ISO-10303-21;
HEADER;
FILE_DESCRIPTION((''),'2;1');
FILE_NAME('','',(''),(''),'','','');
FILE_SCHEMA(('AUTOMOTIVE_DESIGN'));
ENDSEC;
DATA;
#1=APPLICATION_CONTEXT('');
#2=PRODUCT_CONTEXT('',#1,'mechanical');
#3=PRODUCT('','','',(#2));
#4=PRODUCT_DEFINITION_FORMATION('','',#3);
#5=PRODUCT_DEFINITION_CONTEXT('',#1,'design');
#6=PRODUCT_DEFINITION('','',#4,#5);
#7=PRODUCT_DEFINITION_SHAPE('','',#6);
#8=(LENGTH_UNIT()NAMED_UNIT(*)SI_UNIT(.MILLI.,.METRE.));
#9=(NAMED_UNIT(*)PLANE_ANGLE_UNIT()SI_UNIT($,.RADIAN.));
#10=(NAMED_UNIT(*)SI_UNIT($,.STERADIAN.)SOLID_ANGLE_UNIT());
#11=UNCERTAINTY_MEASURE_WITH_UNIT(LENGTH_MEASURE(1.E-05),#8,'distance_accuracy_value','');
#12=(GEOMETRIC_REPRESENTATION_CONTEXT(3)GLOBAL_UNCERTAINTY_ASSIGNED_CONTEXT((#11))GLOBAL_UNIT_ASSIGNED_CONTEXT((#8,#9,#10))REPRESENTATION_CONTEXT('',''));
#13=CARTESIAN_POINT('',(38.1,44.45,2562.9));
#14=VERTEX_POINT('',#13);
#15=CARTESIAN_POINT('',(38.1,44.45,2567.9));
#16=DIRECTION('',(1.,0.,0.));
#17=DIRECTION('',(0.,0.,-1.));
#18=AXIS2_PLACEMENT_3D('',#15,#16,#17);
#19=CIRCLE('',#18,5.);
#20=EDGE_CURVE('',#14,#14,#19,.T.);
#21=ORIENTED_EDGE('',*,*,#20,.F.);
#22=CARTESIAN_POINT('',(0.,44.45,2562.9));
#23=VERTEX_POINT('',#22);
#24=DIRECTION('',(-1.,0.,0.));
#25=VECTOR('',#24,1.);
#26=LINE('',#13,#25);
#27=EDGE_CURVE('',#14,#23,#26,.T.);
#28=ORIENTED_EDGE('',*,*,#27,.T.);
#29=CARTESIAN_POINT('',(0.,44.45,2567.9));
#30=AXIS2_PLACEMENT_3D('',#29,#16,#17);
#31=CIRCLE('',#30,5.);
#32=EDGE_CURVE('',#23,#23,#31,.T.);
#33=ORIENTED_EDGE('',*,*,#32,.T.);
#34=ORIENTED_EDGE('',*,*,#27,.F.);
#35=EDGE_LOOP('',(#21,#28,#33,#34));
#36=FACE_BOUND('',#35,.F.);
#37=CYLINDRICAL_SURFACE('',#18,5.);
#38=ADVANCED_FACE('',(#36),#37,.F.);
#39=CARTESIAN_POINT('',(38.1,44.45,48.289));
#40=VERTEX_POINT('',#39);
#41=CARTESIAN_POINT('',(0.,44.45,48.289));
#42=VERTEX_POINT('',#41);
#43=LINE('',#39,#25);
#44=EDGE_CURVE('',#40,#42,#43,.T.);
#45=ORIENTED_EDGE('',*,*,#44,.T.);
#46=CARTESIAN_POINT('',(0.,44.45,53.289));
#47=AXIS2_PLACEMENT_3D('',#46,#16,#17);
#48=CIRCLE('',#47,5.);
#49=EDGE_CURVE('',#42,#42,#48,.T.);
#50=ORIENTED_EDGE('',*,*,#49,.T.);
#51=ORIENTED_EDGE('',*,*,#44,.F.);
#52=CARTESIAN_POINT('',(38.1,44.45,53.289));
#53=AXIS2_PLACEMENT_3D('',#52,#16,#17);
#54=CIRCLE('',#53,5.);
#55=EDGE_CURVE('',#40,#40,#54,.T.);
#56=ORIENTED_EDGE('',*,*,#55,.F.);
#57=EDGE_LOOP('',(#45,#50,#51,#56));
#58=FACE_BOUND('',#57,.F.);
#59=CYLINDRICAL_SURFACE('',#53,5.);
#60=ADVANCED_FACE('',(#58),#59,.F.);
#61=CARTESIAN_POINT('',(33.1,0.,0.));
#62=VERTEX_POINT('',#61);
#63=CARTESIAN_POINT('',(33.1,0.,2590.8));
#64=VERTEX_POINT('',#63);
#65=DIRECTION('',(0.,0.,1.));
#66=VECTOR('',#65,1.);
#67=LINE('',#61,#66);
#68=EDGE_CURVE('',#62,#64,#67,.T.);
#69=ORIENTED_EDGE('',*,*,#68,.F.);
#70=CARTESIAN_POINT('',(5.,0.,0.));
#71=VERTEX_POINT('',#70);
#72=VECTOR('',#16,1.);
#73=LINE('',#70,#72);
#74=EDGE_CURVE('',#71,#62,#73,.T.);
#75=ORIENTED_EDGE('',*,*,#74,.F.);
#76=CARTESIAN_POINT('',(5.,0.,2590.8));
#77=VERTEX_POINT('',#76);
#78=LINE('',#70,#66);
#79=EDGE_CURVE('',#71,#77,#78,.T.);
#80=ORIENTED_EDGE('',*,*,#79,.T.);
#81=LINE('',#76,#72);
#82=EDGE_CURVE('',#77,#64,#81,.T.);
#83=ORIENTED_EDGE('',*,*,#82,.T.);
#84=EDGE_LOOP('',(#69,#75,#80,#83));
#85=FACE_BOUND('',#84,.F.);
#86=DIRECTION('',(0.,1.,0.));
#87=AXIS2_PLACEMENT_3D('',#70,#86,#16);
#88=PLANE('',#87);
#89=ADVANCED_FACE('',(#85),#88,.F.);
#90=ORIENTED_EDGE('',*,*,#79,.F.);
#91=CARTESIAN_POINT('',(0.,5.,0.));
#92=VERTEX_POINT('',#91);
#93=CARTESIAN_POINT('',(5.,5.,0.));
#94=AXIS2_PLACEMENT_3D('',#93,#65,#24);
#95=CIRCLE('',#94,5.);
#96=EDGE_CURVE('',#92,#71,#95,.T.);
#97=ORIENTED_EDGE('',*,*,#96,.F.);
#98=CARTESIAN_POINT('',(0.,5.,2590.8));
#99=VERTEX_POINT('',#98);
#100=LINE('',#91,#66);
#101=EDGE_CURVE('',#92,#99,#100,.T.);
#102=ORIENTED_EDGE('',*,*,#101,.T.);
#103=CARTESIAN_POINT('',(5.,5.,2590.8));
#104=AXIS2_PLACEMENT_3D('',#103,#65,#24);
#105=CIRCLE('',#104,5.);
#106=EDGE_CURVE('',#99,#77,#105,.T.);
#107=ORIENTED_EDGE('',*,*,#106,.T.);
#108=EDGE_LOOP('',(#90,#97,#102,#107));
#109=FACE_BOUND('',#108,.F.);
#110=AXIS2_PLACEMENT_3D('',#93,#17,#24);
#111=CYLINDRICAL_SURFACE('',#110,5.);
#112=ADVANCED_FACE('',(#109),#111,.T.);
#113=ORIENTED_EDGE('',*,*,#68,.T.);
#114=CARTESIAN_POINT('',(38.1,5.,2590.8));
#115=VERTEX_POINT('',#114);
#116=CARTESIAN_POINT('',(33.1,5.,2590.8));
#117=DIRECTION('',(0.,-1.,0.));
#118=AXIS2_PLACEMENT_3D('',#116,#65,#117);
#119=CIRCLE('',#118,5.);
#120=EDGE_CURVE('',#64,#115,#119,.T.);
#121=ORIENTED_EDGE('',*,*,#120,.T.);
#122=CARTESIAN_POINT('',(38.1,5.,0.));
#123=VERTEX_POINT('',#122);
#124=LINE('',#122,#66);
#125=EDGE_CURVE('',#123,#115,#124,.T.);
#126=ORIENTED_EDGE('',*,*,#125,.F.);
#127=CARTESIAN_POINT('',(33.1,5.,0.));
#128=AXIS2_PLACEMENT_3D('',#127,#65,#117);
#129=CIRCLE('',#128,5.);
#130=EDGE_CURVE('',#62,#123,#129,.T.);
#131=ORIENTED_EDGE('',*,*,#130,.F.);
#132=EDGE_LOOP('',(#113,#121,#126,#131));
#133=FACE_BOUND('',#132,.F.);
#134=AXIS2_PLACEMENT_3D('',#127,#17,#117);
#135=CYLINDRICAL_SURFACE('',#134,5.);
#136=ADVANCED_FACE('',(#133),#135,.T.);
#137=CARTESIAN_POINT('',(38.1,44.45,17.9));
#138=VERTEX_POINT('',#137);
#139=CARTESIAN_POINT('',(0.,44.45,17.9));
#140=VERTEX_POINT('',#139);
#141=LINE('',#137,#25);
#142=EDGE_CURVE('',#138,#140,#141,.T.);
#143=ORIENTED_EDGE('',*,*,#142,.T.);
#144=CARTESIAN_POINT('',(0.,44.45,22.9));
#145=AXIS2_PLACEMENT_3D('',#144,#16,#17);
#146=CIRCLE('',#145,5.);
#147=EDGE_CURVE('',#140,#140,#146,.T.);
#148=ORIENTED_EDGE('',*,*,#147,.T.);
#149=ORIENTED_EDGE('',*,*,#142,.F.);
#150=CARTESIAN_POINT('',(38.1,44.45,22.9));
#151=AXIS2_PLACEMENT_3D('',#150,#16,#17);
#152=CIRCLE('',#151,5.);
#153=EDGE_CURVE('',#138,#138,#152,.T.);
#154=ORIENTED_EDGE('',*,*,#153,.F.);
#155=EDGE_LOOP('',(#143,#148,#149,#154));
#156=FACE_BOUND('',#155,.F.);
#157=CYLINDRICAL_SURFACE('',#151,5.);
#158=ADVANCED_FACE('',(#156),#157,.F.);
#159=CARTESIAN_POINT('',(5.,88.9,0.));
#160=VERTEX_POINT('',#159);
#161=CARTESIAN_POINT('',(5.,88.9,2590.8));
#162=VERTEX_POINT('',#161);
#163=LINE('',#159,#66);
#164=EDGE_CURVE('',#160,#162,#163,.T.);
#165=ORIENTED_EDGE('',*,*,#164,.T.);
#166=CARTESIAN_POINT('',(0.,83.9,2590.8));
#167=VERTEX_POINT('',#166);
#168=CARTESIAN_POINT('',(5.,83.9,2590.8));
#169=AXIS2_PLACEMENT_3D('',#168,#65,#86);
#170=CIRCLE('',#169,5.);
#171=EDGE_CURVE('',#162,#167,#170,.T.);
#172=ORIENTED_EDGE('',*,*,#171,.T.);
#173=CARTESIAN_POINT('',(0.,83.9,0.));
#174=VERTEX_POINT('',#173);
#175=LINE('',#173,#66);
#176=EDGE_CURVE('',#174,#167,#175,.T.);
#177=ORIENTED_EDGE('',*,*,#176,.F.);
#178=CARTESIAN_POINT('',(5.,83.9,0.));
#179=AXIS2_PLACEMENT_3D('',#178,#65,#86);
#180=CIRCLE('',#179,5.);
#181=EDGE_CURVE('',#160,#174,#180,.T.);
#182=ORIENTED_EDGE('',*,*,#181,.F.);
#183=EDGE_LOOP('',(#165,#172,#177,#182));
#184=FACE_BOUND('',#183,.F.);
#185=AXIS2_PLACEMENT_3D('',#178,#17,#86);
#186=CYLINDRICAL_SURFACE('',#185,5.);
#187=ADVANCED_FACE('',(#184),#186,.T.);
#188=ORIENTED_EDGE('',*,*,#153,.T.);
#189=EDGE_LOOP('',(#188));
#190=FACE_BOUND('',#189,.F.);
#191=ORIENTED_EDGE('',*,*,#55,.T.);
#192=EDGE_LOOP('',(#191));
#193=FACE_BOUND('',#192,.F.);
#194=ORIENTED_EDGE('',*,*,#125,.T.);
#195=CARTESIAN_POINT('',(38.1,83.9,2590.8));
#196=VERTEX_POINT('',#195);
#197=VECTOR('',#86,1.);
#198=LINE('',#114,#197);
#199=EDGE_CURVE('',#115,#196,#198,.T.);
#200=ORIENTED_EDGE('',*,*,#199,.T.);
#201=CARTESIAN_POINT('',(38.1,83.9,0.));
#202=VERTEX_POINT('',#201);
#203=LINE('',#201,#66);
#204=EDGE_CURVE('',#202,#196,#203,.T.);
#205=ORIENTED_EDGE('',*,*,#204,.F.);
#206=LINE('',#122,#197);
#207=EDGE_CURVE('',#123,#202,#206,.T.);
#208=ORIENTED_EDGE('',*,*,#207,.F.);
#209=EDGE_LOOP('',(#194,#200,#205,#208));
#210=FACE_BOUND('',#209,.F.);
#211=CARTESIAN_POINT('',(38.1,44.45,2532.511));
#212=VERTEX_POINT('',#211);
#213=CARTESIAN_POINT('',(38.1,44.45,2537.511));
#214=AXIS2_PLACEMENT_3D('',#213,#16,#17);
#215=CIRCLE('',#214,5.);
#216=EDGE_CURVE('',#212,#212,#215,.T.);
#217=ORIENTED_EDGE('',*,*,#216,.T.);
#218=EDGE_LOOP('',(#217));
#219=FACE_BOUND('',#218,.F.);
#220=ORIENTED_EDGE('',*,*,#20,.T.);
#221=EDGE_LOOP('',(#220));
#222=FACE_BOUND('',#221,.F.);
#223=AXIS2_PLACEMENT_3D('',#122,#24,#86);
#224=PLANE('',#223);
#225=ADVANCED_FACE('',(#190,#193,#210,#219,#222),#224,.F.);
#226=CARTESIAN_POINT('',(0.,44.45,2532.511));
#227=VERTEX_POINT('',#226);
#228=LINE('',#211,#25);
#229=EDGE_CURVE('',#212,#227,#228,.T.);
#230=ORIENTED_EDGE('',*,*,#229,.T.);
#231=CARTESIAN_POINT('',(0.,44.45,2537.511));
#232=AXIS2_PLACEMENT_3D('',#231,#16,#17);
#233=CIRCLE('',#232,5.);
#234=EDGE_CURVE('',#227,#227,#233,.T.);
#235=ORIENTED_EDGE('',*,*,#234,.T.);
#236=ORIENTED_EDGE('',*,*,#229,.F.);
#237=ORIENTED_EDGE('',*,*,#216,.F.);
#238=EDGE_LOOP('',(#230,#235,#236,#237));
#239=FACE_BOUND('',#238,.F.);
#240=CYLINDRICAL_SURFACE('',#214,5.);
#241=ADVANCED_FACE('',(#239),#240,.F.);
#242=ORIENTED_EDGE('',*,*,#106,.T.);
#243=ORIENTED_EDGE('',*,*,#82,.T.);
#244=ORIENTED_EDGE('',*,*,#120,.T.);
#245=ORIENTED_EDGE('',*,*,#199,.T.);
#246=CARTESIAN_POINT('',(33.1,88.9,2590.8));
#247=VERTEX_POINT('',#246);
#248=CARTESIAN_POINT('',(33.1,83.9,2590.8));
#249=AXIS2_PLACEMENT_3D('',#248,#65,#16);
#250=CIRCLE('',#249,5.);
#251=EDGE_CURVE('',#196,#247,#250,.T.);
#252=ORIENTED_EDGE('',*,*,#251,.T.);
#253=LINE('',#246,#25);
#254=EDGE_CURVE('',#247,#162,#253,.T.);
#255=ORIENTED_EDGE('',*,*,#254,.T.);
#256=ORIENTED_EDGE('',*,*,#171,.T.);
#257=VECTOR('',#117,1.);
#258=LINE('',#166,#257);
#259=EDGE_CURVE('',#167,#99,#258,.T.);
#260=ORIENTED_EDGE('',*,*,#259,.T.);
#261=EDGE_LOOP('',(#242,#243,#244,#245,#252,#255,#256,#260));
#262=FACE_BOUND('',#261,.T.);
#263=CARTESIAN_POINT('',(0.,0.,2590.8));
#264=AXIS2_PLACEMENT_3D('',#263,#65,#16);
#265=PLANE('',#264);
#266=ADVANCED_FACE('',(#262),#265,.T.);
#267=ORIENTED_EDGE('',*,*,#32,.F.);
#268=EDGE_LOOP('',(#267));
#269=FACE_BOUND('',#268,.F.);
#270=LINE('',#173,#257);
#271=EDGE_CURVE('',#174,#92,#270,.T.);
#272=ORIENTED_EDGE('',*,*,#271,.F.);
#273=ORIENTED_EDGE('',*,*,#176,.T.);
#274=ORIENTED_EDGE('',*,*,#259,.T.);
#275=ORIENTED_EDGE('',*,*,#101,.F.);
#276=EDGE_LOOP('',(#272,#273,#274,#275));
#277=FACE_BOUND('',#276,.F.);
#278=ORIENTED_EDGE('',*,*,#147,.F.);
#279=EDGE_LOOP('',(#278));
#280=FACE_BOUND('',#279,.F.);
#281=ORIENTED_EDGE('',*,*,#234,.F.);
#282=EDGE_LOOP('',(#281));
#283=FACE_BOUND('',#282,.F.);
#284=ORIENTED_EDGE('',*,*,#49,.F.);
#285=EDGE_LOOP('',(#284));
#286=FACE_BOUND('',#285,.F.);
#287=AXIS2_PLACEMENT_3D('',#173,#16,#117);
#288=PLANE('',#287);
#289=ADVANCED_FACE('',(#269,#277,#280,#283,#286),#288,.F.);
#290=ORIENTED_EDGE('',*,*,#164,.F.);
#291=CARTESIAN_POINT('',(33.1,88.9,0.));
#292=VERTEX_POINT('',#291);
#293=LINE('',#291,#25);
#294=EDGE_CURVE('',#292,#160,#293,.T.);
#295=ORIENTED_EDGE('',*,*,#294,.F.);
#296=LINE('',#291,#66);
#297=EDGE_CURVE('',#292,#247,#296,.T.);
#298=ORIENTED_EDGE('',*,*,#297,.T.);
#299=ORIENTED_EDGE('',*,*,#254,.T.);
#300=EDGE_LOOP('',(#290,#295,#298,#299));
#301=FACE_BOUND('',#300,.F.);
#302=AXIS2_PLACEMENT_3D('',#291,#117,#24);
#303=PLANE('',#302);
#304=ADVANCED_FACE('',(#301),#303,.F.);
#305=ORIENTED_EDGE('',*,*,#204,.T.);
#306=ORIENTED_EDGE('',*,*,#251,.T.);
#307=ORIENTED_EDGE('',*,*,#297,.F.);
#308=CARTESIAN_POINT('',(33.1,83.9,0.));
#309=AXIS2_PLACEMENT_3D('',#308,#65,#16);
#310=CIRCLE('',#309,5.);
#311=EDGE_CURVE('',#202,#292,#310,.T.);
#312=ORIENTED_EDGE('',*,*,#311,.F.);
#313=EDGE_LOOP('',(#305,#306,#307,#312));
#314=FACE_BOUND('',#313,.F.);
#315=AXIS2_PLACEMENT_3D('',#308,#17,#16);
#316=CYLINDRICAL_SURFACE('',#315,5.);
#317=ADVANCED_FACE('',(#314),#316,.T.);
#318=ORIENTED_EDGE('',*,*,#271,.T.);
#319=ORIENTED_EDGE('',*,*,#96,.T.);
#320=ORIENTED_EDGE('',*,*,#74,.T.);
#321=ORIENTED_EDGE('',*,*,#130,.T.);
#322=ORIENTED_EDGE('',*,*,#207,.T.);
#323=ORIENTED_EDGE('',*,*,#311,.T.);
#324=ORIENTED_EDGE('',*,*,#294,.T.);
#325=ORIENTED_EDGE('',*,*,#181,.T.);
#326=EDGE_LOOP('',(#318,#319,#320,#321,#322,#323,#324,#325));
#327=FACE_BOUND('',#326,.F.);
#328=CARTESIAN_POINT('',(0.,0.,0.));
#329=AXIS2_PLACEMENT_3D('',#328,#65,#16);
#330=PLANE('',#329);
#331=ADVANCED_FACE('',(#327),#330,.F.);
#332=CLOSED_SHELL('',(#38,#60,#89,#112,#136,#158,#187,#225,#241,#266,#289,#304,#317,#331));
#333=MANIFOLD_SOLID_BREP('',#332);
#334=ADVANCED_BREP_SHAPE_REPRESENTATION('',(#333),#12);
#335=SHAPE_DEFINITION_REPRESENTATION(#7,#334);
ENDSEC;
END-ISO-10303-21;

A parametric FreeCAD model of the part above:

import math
import FreeCAD as App
import Part
import Sketcher
Q = App.Units.Quantity

doc = App.newDocument("Part")
body = doc.addObject("PartDesign::Body", "Body")

# Sketch on XY plane
sketch1 = body.newObject("Sketcher::SketchObject", "Sketch")
sketch1.AttachmentSupport = (doc.getObject("XY_Plane"), [""])
sketch1.MapMode = "FlatFace"
sketch1.addGeometry([
    Part.ArcOfCircle(Part.Circle(App.Vector(5, 5, 0), App.Vector(0, 0, 1), 5), math.radians(180), math.radians(270)),  # 0
    Part.LineSegment(App.Vector(5, 0, 0), App.Vector(33, 0, 0)),  # 1
    Part.ArcOfCircle(Part.Circle(App.Vector(33, 5, 0), App.Vector(0, 0, 1), 5), math.radians(-90), math.radians(0)),  # 2
    Part.LineSegment(App.Vector(38, 5, 0), App.Vector(38, 84, 0)),  # 3
    Part.ArcOfCircle(Part.Circle(App.Vector(33, 84, 0), App.Vector(0, 0, 1), 5), math.radians(0), math.radians(90)),  # 4
    Part.LineSegment(App.Vector(33, 89, 0), App.Vector(5, 89, 0)),  # 5
    Part.ArcOfCircle(Part.Circle(App.Vector(5, 84, 0), App.Vector(0, 0, 1), 5), math.radians(90), math.radians(180)),  # 6
    Part.LineSegment(App.Vector(0, 84, 0), App.Vector(0, 5, 0)),  # 7
], False)
sketch1.addConstraint([
    Sketcher.Constraint("Tangent", 0, 2, 1, 1),
    Sketcher.Constraint("Tangent", 1, 2, 2, 1),
    Sketcher.Constraint("Tangent", 2, 2, 3, 1),
    Sketcher.Constraint("Tangent", 3, 2, 4, 1),
    Sketcher.Constraint("Tangent", 4, 2, 5, 1),
    Sketcher.Constraint("Tangent", 5, 2, 6, 1),
    Sketcher.Constraint("Tangent", 6, 2, 7, 1),
    Sketcher.Constraint("Tangent", 7, 2, 0, 1),
    Sketcher.Constraint("Horizontal", 1),
    Sketcher.Constraint("Vertical", 3),
    Sketcher.Constraint("Horizontal", 5),
    Sketcher.Constraint("Vertical", 7),
    Sketcher.Constraint("Equal", 0, 2),
    Sketcher.Constraint("Equal", 2, 4),
    Sketcher.Constraint("Equal", 4, 6),
    Sketcher.Constraint("PointOnObject", 0, 2, -1),
    Sketcher.Constraint("PointOnObject", 6, 2, -2),
    Sketcher.Constraint("DistanceX", -1, 1, 2, 2, Q("1.5 in")),
    Sketcher.Constraint("DistanceY", -1, 1, 4, 2, Q("3.5 in")),
    Sketcher.Constraint("Radius", 0, 5.0),
])
pad1 = body.newObject("PartDesign::Pad", "Pad")
pad1.Profile = sketch1
pad1.Length = Q("102 in")

# Sketch on YZ plane
sketch2 = body.newObject("Sketcher::SketchObject", "Sketch001")
sketch2.AttachmentSupport = (doc.getObject("YZ_Plane"), [""])
sketch2.MapMode = "FlatFace"
sketch2.AttachmentOffset = App.Placement(App.Vector(0, 0, 1.5 * 25.4), App.Rotation())
sketch2.addGeometry([
    Part.Circle(App.Vector(44, 23, 0), App.Vector(0, 0, 1), 5),
    Part.Circle(App.Vector(44, 53, 0), App.Vector(0, 0, 1), 5),
    Part.Circle(App.Vector(44, 2538, 0), App.Vector(0, 0, 1), 5),
    Part.Circle(App.Vector(44, 2568, 0), App.Vector(0, 0, 1), 5),
], False)
sketch2.addConstraint([
    Sketcher.Constraint("Equal", 0, 1),
    Sketcher.Constraint("Equal", 1, 2),
    Sketcher.Constraint("Equal", 2, 3),
    Sketcher.Constraint("Vertical", 0, 3, 1, 3),
    Sketcher.Constraint("Vertical", 1, 3, 2, 3),
    Sketcher.Constraint("Vertical", 2, 3, 3, 3),
    Sketcher.Constraint("Diameter", 0, Q("0.3937 in")),
    Sketcher.Constraint("DistanceX", -1, 1, 0, 3, Q("1.75 in")),
    Sketcher.Constraint("DistanceY", -1, 1, 0, 3, 22.9),
    Sketcher.Constraint("DistanceY", 0, 3, 1, 3, 30.389),
    Sketcher.Constraint("DistanceY", 2, 3, 3, 3, 30.389),
    Sketcher.Constraint("DistanceY", -1, 1, 2, 3, Q("99.902 in")),
])
pocket1 = body.newObject("PartDesign::Pocket", "Pocket")
pocket1.Profile = sketch2
pocket1.Length = Q("1.5 in")

doc.recompute()
